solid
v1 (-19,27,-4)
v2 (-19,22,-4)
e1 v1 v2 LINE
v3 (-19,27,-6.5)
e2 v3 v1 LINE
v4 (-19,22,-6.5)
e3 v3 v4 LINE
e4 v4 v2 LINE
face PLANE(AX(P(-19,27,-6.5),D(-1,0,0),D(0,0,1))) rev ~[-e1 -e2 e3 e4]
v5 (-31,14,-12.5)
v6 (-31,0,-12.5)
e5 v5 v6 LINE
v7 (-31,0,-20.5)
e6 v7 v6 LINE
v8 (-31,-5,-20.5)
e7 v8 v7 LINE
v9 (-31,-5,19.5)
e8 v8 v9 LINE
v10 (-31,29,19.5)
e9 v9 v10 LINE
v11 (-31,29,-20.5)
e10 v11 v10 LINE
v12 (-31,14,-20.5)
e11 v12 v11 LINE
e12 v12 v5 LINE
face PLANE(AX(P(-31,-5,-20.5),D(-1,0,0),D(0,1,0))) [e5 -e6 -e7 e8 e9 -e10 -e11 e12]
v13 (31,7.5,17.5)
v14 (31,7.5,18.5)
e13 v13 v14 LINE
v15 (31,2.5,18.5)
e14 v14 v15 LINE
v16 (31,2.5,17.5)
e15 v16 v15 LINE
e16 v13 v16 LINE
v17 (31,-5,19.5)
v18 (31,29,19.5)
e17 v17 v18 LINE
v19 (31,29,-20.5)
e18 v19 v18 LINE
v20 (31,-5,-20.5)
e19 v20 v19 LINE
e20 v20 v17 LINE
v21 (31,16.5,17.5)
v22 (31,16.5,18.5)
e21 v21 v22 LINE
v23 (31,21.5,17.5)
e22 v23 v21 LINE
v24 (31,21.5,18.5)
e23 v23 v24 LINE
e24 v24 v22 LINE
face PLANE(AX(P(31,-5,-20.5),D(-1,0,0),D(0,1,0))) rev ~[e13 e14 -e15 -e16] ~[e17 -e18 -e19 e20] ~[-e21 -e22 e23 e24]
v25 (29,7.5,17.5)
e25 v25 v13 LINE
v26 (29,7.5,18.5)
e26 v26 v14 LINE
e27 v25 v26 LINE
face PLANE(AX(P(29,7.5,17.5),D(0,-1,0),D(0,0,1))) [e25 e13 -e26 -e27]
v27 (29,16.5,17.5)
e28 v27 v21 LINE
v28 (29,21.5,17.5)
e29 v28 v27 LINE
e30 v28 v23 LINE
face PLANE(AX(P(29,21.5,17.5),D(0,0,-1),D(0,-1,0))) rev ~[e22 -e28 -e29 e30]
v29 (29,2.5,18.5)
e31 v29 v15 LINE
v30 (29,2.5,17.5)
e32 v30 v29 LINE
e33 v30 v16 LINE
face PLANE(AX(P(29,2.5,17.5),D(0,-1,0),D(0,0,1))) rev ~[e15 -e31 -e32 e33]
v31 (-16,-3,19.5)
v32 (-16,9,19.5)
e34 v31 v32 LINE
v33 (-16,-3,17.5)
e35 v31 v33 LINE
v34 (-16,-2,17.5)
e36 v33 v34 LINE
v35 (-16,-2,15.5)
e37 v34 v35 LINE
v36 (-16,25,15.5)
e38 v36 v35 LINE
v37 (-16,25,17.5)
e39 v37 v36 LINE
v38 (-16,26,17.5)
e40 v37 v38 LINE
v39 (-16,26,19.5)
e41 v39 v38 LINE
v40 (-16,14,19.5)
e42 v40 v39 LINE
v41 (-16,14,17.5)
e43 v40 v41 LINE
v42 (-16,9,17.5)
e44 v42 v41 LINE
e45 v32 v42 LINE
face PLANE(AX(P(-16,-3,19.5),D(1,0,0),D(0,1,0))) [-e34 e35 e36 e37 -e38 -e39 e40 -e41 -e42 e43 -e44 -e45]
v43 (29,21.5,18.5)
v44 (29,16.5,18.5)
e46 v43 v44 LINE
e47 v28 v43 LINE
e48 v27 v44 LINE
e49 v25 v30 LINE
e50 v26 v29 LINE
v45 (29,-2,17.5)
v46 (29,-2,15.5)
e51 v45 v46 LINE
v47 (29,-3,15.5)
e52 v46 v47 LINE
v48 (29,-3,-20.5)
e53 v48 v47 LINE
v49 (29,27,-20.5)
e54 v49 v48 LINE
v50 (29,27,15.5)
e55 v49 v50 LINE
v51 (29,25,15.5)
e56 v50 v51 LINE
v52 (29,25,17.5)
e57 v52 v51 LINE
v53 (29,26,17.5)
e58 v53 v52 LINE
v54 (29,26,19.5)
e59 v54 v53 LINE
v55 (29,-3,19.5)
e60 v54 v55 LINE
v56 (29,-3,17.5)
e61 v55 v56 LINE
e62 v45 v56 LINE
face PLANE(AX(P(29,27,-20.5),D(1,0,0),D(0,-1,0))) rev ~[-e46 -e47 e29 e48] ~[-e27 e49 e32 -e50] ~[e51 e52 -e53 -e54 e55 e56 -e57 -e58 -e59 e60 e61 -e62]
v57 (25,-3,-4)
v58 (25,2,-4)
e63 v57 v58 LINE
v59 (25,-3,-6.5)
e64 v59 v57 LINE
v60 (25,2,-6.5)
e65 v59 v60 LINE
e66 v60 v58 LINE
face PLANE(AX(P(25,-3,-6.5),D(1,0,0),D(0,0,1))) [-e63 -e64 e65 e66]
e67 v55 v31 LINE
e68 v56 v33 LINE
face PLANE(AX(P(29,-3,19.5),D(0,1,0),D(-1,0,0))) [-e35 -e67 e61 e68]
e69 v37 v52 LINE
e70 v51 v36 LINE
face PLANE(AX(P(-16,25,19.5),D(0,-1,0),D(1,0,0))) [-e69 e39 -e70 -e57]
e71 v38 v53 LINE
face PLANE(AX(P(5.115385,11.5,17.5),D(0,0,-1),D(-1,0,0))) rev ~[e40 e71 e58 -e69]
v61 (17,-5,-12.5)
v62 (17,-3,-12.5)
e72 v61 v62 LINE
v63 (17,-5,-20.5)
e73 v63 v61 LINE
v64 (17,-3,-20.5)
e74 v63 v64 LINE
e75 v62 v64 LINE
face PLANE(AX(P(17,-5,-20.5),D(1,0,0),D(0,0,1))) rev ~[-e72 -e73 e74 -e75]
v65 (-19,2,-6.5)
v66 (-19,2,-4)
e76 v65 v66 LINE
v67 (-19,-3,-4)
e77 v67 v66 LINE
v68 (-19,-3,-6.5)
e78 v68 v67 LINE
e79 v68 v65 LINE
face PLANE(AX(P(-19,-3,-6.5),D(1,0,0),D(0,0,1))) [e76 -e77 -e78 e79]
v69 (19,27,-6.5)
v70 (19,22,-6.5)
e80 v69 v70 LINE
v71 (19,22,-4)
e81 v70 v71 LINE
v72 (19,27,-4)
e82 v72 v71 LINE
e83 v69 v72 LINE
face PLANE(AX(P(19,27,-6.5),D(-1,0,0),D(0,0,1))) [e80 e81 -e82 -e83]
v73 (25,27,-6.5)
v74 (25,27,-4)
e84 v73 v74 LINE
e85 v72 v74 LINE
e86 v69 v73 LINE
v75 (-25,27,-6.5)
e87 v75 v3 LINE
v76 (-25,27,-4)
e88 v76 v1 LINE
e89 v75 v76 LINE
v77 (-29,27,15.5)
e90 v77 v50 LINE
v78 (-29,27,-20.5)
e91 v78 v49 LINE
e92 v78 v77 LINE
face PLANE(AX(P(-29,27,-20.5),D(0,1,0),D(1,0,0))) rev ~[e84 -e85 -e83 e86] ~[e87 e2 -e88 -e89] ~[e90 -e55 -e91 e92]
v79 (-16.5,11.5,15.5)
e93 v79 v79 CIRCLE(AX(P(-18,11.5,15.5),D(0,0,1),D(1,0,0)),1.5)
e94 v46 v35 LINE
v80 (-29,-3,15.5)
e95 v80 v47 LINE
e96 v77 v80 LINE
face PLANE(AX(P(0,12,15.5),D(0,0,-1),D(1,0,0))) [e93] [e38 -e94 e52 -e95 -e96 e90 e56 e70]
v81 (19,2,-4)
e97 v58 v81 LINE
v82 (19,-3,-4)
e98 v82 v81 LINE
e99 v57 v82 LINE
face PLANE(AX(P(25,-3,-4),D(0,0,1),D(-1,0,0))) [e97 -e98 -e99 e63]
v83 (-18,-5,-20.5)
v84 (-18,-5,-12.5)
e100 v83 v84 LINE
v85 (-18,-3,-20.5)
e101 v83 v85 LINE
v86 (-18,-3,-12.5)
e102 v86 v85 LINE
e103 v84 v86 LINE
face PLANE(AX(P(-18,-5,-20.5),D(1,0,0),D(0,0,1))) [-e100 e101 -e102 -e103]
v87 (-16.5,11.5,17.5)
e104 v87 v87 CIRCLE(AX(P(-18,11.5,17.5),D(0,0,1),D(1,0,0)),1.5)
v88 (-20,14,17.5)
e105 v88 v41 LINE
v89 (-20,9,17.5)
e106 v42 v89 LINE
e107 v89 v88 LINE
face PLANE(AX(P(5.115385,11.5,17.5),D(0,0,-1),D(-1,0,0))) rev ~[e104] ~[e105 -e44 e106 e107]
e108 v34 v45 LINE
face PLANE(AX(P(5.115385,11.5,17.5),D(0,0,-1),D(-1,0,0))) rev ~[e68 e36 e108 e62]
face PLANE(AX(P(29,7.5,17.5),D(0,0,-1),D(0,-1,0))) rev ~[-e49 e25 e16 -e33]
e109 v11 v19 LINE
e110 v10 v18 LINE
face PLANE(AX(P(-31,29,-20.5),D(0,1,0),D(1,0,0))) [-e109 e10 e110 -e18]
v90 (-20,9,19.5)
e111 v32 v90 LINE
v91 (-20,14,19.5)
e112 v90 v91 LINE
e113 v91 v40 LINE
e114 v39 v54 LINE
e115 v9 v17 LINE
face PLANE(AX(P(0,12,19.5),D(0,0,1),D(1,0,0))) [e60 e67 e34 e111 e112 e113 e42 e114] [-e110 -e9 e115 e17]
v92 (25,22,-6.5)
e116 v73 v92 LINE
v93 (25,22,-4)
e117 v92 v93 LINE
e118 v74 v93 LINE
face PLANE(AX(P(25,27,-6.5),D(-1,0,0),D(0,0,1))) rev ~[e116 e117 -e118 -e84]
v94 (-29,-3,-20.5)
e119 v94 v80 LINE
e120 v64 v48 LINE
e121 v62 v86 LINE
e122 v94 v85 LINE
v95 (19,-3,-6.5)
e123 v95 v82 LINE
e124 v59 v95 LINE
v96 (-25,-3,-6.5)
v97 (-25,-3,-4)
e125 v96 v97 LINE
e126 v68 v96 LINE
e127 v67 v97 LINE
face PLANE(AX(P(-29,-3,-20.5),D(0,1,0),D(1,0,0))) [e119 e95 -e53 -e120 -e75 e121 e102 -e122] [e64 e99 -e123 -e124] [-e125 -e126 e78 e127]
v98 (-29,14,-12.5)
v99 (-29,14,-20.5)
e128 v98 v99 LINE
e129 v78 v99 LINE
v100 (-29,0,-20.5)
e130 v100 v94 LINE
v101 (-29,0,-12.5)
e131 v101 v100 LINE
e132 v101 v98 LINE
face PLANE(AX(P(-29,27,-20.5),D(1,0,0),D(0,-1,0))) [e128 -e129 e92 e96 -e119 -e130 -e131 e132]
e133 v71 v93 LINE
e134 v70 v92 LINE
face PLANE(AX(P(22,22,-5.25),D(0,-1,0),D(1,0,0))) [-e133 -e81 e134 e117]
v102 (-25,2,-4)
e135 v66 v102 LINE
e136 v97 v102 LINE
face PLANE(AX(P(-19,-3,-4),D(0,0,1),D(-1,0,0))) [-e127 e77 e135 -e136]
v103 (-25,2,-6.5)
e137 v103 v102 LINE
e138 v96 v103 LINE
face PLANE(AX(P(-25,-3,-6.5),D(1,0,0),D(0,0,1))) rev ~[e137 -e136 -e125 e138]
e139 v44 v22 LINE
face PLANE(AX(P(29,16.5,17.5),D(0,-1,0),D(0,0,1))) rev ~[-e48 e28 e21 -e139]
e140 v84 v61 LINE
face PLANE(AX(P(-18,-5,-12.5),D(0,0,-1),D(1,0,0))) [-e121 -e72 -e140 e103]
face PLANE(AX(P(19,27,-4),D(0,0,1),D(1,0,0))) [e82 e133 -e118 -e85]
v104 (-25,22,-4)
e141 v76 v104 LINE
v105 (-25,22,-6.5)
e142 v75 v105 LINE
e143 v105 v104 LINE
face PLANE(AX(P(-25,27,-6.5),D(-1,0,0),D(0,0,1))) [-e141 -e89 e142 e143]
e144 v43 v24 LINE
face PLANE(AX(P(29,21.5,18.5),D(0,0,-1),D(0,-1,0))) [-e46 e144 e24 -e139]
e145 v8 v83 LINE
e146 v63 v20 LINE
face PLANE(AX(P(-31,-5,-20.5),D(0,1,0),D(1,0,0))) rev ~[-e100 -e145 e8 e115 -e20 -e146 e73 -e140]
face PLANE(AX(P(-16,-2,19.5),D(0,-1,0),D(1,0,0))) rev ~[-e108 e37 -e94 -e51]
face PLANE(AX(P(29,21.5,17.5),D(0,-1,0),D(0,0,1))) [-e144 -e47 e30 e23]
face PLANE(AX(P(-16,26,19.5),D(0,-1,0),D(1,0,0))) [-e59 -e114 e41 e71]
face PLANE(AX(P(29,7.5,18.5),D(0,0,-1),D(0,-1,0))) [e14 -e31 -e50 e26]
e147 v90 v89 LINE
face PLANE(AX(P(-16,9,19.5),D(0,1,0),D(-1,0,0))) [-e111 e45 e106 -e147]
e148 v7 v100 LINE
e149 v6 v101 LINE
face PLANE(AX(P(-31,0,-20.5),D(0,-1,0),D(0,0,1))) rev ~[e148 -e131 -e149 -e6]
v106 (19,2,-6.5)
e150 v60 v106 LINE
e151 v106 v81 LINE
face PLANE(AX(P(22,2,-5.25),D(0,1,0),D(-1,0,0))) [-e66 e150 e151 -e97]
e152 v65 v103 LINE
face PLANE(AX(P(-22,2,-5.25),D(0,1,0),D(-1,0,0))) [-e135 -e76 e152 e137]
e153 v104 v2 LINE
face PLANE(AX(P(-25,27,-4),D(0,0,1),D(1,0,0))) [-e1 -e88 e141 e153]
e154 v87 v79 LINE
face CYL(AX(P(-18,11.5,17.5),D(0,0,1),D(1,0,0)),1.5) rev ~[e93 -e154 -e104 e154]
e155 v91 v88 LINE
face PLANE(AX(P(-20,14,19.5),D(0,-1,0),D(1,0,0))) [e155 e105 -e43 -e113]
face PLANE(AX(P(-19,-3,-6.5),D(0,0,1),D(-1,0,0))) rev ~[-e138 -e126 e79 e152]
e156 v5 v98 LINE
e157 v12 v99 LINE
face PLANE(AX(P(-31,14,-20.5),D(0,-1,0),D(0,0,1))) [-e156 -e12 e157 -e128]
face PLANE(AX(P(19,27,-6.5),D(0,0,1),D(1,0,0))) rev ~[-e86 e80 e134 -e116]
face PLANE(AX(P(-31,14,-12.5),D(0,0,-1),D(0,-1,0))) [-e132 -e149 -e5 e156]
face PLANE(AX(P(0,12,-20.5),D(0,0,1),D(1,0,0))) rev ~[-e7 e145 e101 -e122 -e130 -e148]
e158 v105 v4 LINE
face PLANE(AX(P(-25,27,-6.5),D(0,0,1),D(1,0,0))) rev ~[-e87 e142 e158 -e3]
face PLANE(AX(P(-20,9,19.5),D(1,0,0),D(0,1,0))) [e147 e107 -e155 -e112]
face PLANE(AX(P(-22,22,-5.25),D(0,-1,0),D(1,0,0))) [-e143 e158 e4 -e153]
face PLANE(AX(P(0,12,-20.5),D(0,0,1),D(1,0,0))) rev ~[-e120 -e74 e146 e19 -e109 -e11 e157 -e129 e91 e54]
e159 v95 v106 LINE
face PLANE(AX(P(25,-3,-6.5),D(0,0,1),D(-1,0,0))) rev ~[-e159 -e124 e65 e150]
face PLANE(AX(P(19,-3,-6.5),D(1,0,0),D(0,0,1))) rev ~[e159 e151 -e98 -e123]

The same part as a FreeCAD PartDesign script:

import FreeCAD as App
import Part
import Sketcher
Q = App.Units.Quantity


def add_polygon(sketch, points):
    """Adds a closed chain of lines whose ends are joined by coincident constraints."""
    first, n = sketch.GeometryCount, len(points)
    for a, b in zip(points, points[1:] + points[:1]):
        sketch.addGeometry(Part.LineSegment(App.Vector(*a, 0), App.Vector(*b, 0)), False)
    for i in range(n):
        sketch.addConstraint(Sketcher.Constraint("Coincident", first + i, 2, first + (i + 1) % n, 1))

doc = App.newDocument("Part")
params = doc.addObject("Spreadsheet::Sheet", "Params")
for row, (alias, value) in enumerate([
    ("sketch1_width", "62 mm"),
    ("sketch1_height", "34 mm"),
    ("pad1_length", "40 mm"),
    ("sketch2_width", "58 mm"),
    ("sketch2_height", "30 mm"),
    ("pocket1_length", "36 mm"),
    ("sketch3_width", "45 mm"),
    ("sketch3_height", "27 mm"),
    ("pocket2_length", "5 mm"),
    ("sketch4_width", "45 mm"),
    ("sketch4_width2", "4 mm"),
    ("sketch4_height", "12 mm"),
    ("sketch4_height2", "5 mm"),
    ("pocket3_length", "2 mm"),
    ("sketch5_diameter", "3 mm"),
    ("pocket4_length", "5 mm"),
    ("sketch6_width", "5 mm"),
    ("sketch6_height", "1 mm"),
    ("pocket5_length", "5 mm"),
    ("sketch7_width", "6 mm"),
    ("sketch7_height", "2.5 mm"),
    ("pad2_length", "5 mm"),
    ("sketch8_width", "6 mm"),
    ("sketch8_height", "2.5 mm"),
    ("pad3_length", "5 mm"),
    ("sketch9_width", "14 mm"),
    ("sketch9_height", "8 mm"),
    ("pocket6_length", "5 mm"),
    ("sketch10_width", "35 mm"),
    ("sketch10_height", "8 mm"),
    ("pocket7_length", "5 mm"),
], start=1):
    params.set(f"A{row}", alias)
    params.set(f"B{row}", "=" + value)
    params.setAlias(f"B{row}", alias)

body = doc.addObject("PartDesign::Body", "Body")

sketch1 = doc.addObject("Sketcher::SketchObject", "Sketch")
body.addObject(sketch1)
sketch1.AttachmentSupport = (doc.XY_Plane, [""])
sketch1.MapMode = "FlatFace"
sketch1.AttachmentOffset = App.Placement(App.Vector(0, 0, 16), App.Rotation())
add_polygon(sketch1, [(-31, 29), (-31, -5), (31, -5), (31, 29)])
sketch1.addConstraint([
    Sketcher.Constraint("Vertical", 0),
    Sketcher.Constraint("Horizontal", 1),
    Sketcher.Constraint("Vertical", 2),
    Sketcher.Constraint("Horizontal", 3),
    Sketcher.Constraint("DistanceX", 1, 1, 1, 2, Q("62 mm")),
    Sketcher.Constraint("DistanceY", 0, 2, 0, 1, Q("34 mm")),
    Sketcher.Constraint("DistanceX", 0, 2, -1, 1, Q("31 mm")),
    Sketcher.Constraint("DistanceY", 0, 2, -1, 1, Q("5 mm")),
])
sketch1.setExpression("Constraints[8]", "Params.sketch1_width")
sketch1.setExpression("Constraints[9]", "Params.sketch1_height")
pad1 = doc.addObject("PartDesign::Pad", "Pad")
body.addObject(pad1)
pad1.Profile = sketch1
pad1.setExpression("Length", "Params.pad1_length")

sketch2 = doc.addObject("Sketcher::SketchObject", "Sketch001")
body.addObject(sketch2)
sketch2.AttachmentSupport = (doc.XY_Plane, [""])
sketch2.MapMode = "FlatFace"
sketch2.AttachmentOffset = App.Placement(App.Vector(0, 0, 16), App.Rotation())
add_polygon(sketch2, [(-29, -3), (-29, 27), (29, 27), (29, -3)])
sketch2.addConstraint([
    Sketcher.Constraint("Vertical", 0),
    Sketcher.Constraint("Horizontal", 1),
    Sketcher.Constraint("Vertical", 2),
    Sketcher.Constraint("Horizontal", 3),
    Sketcher.Constraint("DistanceX", 1, 1, 1, 2, Q("58 mm")),
    Sketcher.Constraint("DistanceY", 0, 1, 0, 2, Q("30 mm")),
    Sketcher.Constraint("DistanceX", 0, 2, -1, 1, Q("29 mm")),
    Sketcher.Constraint("DistanceY", -1, 1, 0, 2, Q("27 mm")),
])
sketch2.setExpression("Constraints[8]", "Params.sketch2_width")
sketch2.setExpression("Constraints[9]", "Params.sketch2_height")
pocket1 = doc.addObject("PartDesign::Pocket", "Pocket")
body.addObject(pocket1)
pocket1.Profile = sketch2
pocket1.setExpression("Length", "Params.pocket1_length")
pocket1.Reversed = True

sketch3 = doc.addObject("Sketcher::SketchObject", "Sketch002")
body.addObject(sketch3)
sketch3.AttachmentSupport = (doc.XY_Plane, [""])
sketch3.MapMode = "FlatFace"
sketch3.AttachmentOffset = App.Placement(App.Vector(0, 0, 56), App.Rotation())
add_polygon(sketch3, [(-16, 25), (-16, -2), (29, -2), (29, 25)])
sketch3.addConstraint([
    Sketcher.Constraint("Vertical", 0),
    Sketcher.Constraint("Horizontal", 1),
    Sketcher.Constraint("Vertical", 2),
    Sketcher.Constraint("Horizontal", 3),
    Sketcher.Constraint("DistanceX", 1, 1, 1, 2, Q("45 mm")),
    Sketcher.Constraint("DistanceY", 0, 2, 0, 1, Q("27 mm")),
    Sketcher.Constraint("DistanceX", 0, 2, -1, 1, Q("16 mm")),
    Sketcher.Constraint("DistanceY", 0, 2, -1, 1, Q("2 mm")),
])
sketch3.setExpression("Constraints[8]", "Params.sketch3_width")
sketch3.setExpression("Constraints[9]", "Params.sketch3_height")
pocket2 = doc.addObject("PartDesign::Pocket", "Pocket001")
body.addObject(pocket2)
pocket2.Profile = sketch3
pocket2.setExpression("Length", "Params.pocket2_length")

sketch4 = doc.addObject("Sketcher::SketchObject", "Sketch003")
body.addObject(sketch4)
sketch4.AttachmentSupport = (doc.XY_Plane, [""])
sketch4.MapMode = "FlatFace"
sketch4.AttachmentOffset = App.Placement(App.Vector(0, 0, 56), App.Rotation())
add_polygon(sketch4, [(29, 26), (-16, 26), (-16, 14), (-20, 14), (-20, 9), (-16, 9), (-16, -3), (29, -3)])
sketch4.addConstraint([
    Sketcher.Constraint("Horizontal", 0),
    Sketcher.Constraint("Vertical", 1),
    Sketcher.Constraint("Horizontal", 2),
    Sketcher.Constraint("Vertical", 3),
    Sketcher.Constraint("Horizontal", 4),
    Sketcher.Constraint("Vertical", 5),
    Sketcher.Constraint("Horizontal", 6),
    Sketcher.Constraint("Vertical", 7),
    Sketcher.Constraint("Vertical", 1, 2, 4, 2),
    Sketcher.Constraint("Equal", 1, 5),
    Sketcher.Constraint("DistanceX", 0, 2, 0, 1, Q("45 mm")),
    Sketcher.Constraint("DistanceX", 2, 2, 2, 1, Q("4 mm")),
    Sketcher.Constraint("DistanceY", 1, 2, 1, 1, Q("12 mm")),
    Sketcher.Constraint("DistanceY", 3, 2, 3, 1, Q("5 mm")),
    Sketcher.Constraint("DistanceX", 0, 2, -1, 1, Q("16 mm")),
    Sketcher.Constraint("DistanceY", -1, 1, 0, 2, Q("26 mm")),
])
sketch4.setExpression("Constraints[18]", "Params.sketch4_width")
sketch4.setExpression("Constraints[19]", "Params.sketch4_width2")
sketch4.setExpression("Constraints[20]", "Params.sketch4_height")
sketch4.setExpression("Constraints[21]", "Params.sketch4_height2")
pocket3 = doc.addObject("PartDesign::Pocket", "Pocket002")
body.addObject(pocket3)
pocket3.Profile = sketch4
pocket3.setExpression("Length", "Params.pocket3_length")

sketch5 = doc.addObject("Sketcher::SketchObject", "Sketch004")
body.addObject(sketch5)
sketch5.AttachmentSupport = (doc.XY_Plane, [""])
sketch5.MapMode = "FlatFace"
sketch5.AttachmentOffset = App.Placement(App.Vector(0, 0, 54), App.Rotation())
sketch5.addGeometry(Part.Circle(App.Vector(-18, 11.5, 0), App.Vector(0, 0, 1), 1.5), False)
sketch5.addConstraint([
    Sketcher.Constraint("Diameter", 0, Q("3 mm")),
    Sketcher.Constraint("DistanceX", 0, 3, -1, 1, Q("18 mm")),
    Sketcher.Constraint("DistanceY", -1, 1, 0, 3, Q("11.5 mm")),
])
sketch5.setExpression("Constraints[0]", "Params.sketch5_diameter")
pocket4 = doc.addObject("PartDesign::Pocket", "Pocket003")
body.addObject(pocket4)
pocket4.Profile = sketch5
pocket4.setExpression("Length", "Params.pocket4_length")

sketch6 = doc.addObject("Sketcher::SketchObject", "Sketch005")
body.addObject(sketch6)
sketch6.AttachmentSupport = (doc.YZ_Plane, [""])
sketch6.MapMode = "FlatFace"
sketch6.AttachmentOffset = App.Placement(App.Vector(0, 0, 29), App.Rotation())
add_polygon(sketch6, [(21.5, 55), (21.5, 54), (16.5, 54), (16.5, 55)])
add_polygon(sketch6, [(7.5, 55), (7.5, 54), (2.5, 54), (2.5, 55)])
sketch6.addConstraint([
    Sketcher.Constraint("Vertical", 0),
    Sketcher.Constraint("Horizontal", 1),
    Sketcher.Constraint("Vertical", 2),
    Sketcher.Constraint("Horizontal", 3),
    Sketcher.Constraint("Vertical", 4),
    Sketcher.Constraint("Horizontal", 5),
    Sketcher.Constraint("Vertical", 6),
    Sketcher.Constraint("Horizontal", 7),
    Sketcher.Constraint("Horizontal", 1, 2, 4, 2),
    Sketcher.Constraint("Horizontal", 3, 2, 6, 2),
    Sketcher.Constraint("Equal", 3, 5),
    Sketcher.Constraint("DistanceX", 1, 2, 1, 1, Q("5 mm")),
    Sketcher.Constraint("DistanceY", 0, 2, 0, 1, Q("1 mm")),
    Sketcher.Constraint("DistanceY", -1, 1, 0, 2, Q("54 mm")),
    Sketcher.Constraint("DistanceX", 4, 2, 1, 2, Q("9 mm")),
    Sketcher.Constraint("DistanceX", -1, 1, 0, 2, Q("21.5 mm")),
])
sketch6.setExpression("Constraints[19]", "Params.sketch6_width")
sketch6.setExpression("Constraints[20]", "Params.sketch6_height")
pocket5 = doc.addObject("PartDesign::Pocket", "Pocket004")
body.addObject(pocket5)
pocket5.Profile = sketch6
pocket5.setExpression("Length", "Params.pocket5_length")
pocket5.Reversed = True

sketch7 = doc.addObject("Sketcher::SketchObject", "Sketch006")
body.addObject(sketch7)
sketch7.AttachmentSupport = (doc.XZ_Plane, [""])
sketch7.MapMode = "FlatFace"
sketch7.AttachmentOffset = App.Placement(App.Vector(0, 0, -27), App.Rotation())
add_polygon(sketch7, [(-25, 32.5), (-25, 30), (-19, 30), (-19, 32.5)])
add_polygon(sketch7, [(19, 32.5), (19, 30), (25, 30), (25, 32.5)])
sketch7.addConstraint([
    Sketcher.Constraint("Vertical", 0),
    Sketcher.Constraint("Horizontal", 1),
    Sketcher.Constraint("Vertical", 2),
    Sketcher.Constraint("Horizontal", 3),
    Sketcher.Constraint("Vertical", 4),
    Sketcher.Constraint("Horizontal", 5),
    Sketcher.Constraint("Vertical", 6),
    Sketcher.Constraint("Horizontal", 7),
    Sketcher.Constraint("Symmetric", 1, 2, 4, 2, -2),
    Sketcher.Constraint("Symmetric", 3, 2, 6, 2, -2),
    Sketcher.Constraint("DistanceX", 1, 1, 1, 2, Q("6 mm")),
    Sketcher.Constraint("DistanceY", 0, 2, 0, 1, Q("2.5 mm")),
    Sketcher.Constraint("DistanceX", 0, 2, -1, 1, Q("25 mm")),
    Sketcher.Constraint("DistanceY", -1, 1, 0, 2, Q("30 mm")),
])
sketch7.setExpression("Constraints[18]", "Params.sketch7_width")
sketch7.setExpression("Constraints[19]", "Params.sketch7_height")
pad2 = doc.addObject("PartDesign::Pad", "Pad001")
body.addObject(pad2)
pad2.Profile = sketch7
pad2.setExpression("Length", "Params.pad2_length")

sketch8 = doc.addObject("Sketcher::SketchObject", "Sketch007")
body.addObject(sketch8)
sketch8.AttachmentSupport = (doc.XZ_Plane, [""])
sketch8.MapMode = "FlatFace"
sketch8.AttachmentOffset = App.Placement(App.Vector(0, 0, 3), App.Rotation())
add_polygon(sketch8, [(25, 32.5), (25, 30), (19, 30), (19, 32.5)])
add_polygon(sketch8, [(-19, 32.5), (-19, 30), (-25, 30), (-25, 32.5)])
sketch8.addConstraint([
    Sketcher.Constraint("Vertical", 0),
    Sketcher.Constraint("Horizontal", 1),
    Sketcher.Constraint("Vertical", 2),
    Sketcher.Constraint("Horizontal", 3),
    Sketcher.Constraint("Vertical", 4),
    Sketcher.Constraint("Horizontal", 5),
    Sketcher.Constraint("Vertical", 6),
    Sketcher.Constraint("Horizontal", 7),
    Sketcher.Constraint("Symmetric", 1, 2, 4, 2, -2),
    Sketcher.Constraint("Symmetric", 3, 2, 6, 2, -2),
    Sketcher.Constraint("DistanceX", 1, 2, 1, 1, Q("6 mm")),
    Sketcher.Constraint("DistanceY", 0, 2, 0, 1, Q("2.5 mm")),
    Sketcher.Constraint("DistanceX", -1, 1, 0, 2, Q("25 mm")),
    Sketcher.Constraint("DistanceY", -1, 1, 0, 2, Q("30 mm")),
])
sketch8.setExpression("Constraints[18]", "Params.sketch8_width")
sketch8.setExpression("Constraints[19]", "Params.sketch8_height")
pad3 = doc.addObject("PartDesign::Pad", "Pad002")
body.addObject(pad3)
pad3.Profile = sketch8
pad3.setExpression("Length", "Params.pad3_length")
pad3.Reversed = True

sketch9 = doc.addObject("Sketcher::SketchObject", "Sketch008")
body.addObject(sketch9)
sketch9.AttachmentSupport = (doc.YZ_Plane, [""])
sketch9.MapMode = "FlatFace"
sketch9.AttachmentOffset = App.Placement(App.Vector(0, 0, -31), App.Rotation())
add_polygon(sketch9, [(14, 24), (14, 16), (0, 16), (0, 24)])
sketch9.addConstraint([
    Sketcher.Constraint("Vertical", 0),
    Sketcher.Constraint("Horizontal", 1),
    Sketcher.Constraint("Vertical", 2),
    Sketcher.Constraint("Horizontal", 3),
    Sketcher.Constraint("PointOnObject", 1, 2, -2),
    Sketcher.Constraint("DistanceX", 1, 2, 1, 1, Q("14 mm")),
    Sketcher.Constraint("DistanceY", 0, 2, 0, 1, Q("8 mm")),
    Sketcher.Constraint("DistanceY", -1, 1, 0, 2, Q("16 mm")),
])
sketch9.setExpression("Constraints[9]", "Params.sketch9_width")
sketch9.setExpression("Constraints[10]", "Params.sketch9_height")
pocket6 = doc.addObject("PartDesign::Pocket", "Pocket005")
body.addObject(pocket6)
pocket6.Profile = sketch9
pocket6.setExpression("Length", "Params.pocket6_length")
pocket6.Reversed = True

sketch10 = doc.addObject("Sketcher::SketchObject", "Sketch009")
body.addObject(sketch10)
sketch10.AttachmentSupport = (doc.XZ_Plane, [""])
sketch10.MapMode = "FlatFace"
sketch10.AttachmentOffset = App.Placement(App.Vector(0, 0, 5), App.Rotation())
add_polygon(sketch10, [(-18, 24), (-18, 16), (17, 16), (17, 24)])
sketch10.addConstraint([
    Sketcher.Constraint("Vertical", 0),
    Sketcher.Constraint("Horizontal", 1),
    Sketcher.Constraint("Vertical", 2),
    Sketcher.Constraint("Horizontal", 3),
    Sketcher.Constraint("DistanceX", 1, 1, 1, 2, Q("35 mm")),
    Sketcher.Constraint("DistanceY", 0, 2, 0, 1, Q("8 mm")),
    Sketcher.Constraint("DistanceX", 0, 2, -1, 1, Q("18 mm")),
    Sketcher.Constraint("DistanceY", -1, 1, 0, 2, Q("16 mm")),
])
sketch10.setExpression("Constraints[8]", "Params.sketch10_width")
sketch10.setExpression("Constraints[9]", "Params.sketch10_height")
pocket7 = doc.addObject("PartDesign::Pocket", "Pocket006")
body.addObject(pocket7)
pocket7.Profile = sketch10
pocket7.setExpression("Length", "Params.pocket7_length")
body2 = doc.addObject("PartDesign::Body", "Body001")
doc.recompute()

body.Placement = App.Placement(App.Vector(0, 0, -36.5), App.Rotation(App.Vector(0, 0, 1), 0))
boolean = doc.addObject("PartDesign::Boolean", "Boolean")
body2.addObject(boolean)
boolean.Type = "Fuse"
boolean.addObjects([body])

doc.recompute()
